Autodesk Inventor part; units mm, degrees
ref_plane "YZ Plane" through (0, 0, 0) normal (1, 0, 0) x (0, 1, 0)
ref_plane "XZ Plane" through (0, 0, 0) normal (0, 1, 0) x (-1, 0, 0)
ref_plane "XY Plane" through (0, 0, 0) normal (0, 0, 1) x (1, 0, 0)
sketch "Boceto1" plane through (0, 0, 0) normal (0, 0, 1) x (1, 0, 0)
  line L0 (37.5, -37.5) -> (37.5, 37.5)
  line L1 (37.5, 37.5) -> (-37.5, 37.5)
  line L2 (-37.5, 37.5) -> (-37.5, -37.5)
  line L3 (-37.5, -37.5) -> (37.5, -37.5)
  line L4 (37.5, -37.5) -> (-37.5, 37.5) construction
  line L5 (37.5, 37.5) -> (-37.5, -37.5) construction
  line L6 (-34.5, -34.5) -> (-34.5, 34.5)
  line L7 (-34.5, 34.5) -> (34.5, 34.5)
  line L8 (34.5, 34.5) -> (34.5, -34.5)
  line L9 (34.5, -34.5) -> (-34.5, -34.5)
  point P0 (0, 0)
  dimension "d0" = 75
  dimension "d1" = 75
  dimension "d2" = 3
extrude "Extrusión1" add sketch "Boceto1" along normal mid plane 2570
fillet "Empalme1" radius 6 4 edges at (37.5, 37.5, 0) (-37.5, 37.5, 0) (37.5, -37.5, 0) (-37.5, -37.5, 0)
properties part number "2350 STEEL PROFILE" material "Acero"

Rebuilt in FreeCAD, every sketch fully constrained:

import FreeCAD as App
import Part
import Sketcher
from FreeCAD import Vector
Q = App.Units.Quantity


def edges_at(feature, points):
    """Names of the edges that pass closest to the given points."""
    edges = feature.Shape.Edges
    near = lambda p: min(range(len(edges)), key=lambda i: edges[i].distToShape(Part.Vertex(*p))[0])
    return sorted({f"Edge{near(p) + 1}" for p in points})


def add_polygon(sketch, points):
    """Adds a closed chain of lines whose ends are joined by coincident constraints."""
    first, n = sketch.GeometryCount, len(points)
    for a, b in zip(points, points[1:] + points[:1]):
        sketch.addGeometry(Part.LineSegment(App.Vector(*a, 0), App.Vector(*b, 0)), False)
    for i in range(n):
        sketch.addConstraint(Sketcher.Constraint("Coincident", first + i, 2, first + (i + 1) % n, 1))

doc = App.newDocument("Part")
body = doc.addObject("PartDesign::Body", "Body")

# Sketch on XY plane
sketch1 = body.newObject("Sketcher::SketchObject", "Sketch")
sketch1.AttachmentSupport = (doc.getObject("XY_Plane"), [""])
sketch1.MapMode = "FlatFace"
add_polygon(sketch1, [(-38, -38), (38, -38), (38, 38), (-38, 38)])  # lines 0-3
add_polygon(sketch1, [(34, -34), (-34, -34), (-34, 34), (34, 34)])  # lines 4-7
sketch1.addConstraint([
    Sketcher.Constraint("Horizontal", 0),
    Sketcher.Constraint("Vertical", 1),
    Sketcher.Constraint("Horizontal", 2),
    Sketcher.Constraint("Vertical", 3),
    Sketcher.Constraint("Horizontal", 4),
    Sketcher.Constraint("Vertical", 5),
    Sketcher.Constraint("Horizontal", 6),
    Sketcher.Constraint("Vertical", 7),
    Sketcher.Constraint("Symmetric", 0, 2, 2, 2, -1, 1),
    Sketcher.Constraint("Symmetric", 4, 2, 6, 2, -1, 1),
    Sketcher.Constraint("Equal", 2, 1),
    Sketcher.Constraint("Equal", 6, 5),
    Sketcher.Constraint("DistanceX", 0, 1, 0, 2, Q("75 mm")),
    Sketcher.Constraint("DistanceX", 3, 2, 4, 2, Q("3 mm")),
])
pad1 = body.newObject("PartDesign::Pad", "Pad")
pad1.Profile = sketch1
pad1.Length = 2570
pad1.Midplane = True
doc.recompute()

fillet = body.newObject("PartDesign::Fillet", "Fillet")
fillet.Base = (pad1, edges_at(pad1, [
    (37.5, 37.5, 0),
    (-37.5, 37.5, 0),
    (37.5, -37.5, 0),
    (-37.5, -37.5, 0),
]))
fillet.Radius = 6

doc.recompute()
